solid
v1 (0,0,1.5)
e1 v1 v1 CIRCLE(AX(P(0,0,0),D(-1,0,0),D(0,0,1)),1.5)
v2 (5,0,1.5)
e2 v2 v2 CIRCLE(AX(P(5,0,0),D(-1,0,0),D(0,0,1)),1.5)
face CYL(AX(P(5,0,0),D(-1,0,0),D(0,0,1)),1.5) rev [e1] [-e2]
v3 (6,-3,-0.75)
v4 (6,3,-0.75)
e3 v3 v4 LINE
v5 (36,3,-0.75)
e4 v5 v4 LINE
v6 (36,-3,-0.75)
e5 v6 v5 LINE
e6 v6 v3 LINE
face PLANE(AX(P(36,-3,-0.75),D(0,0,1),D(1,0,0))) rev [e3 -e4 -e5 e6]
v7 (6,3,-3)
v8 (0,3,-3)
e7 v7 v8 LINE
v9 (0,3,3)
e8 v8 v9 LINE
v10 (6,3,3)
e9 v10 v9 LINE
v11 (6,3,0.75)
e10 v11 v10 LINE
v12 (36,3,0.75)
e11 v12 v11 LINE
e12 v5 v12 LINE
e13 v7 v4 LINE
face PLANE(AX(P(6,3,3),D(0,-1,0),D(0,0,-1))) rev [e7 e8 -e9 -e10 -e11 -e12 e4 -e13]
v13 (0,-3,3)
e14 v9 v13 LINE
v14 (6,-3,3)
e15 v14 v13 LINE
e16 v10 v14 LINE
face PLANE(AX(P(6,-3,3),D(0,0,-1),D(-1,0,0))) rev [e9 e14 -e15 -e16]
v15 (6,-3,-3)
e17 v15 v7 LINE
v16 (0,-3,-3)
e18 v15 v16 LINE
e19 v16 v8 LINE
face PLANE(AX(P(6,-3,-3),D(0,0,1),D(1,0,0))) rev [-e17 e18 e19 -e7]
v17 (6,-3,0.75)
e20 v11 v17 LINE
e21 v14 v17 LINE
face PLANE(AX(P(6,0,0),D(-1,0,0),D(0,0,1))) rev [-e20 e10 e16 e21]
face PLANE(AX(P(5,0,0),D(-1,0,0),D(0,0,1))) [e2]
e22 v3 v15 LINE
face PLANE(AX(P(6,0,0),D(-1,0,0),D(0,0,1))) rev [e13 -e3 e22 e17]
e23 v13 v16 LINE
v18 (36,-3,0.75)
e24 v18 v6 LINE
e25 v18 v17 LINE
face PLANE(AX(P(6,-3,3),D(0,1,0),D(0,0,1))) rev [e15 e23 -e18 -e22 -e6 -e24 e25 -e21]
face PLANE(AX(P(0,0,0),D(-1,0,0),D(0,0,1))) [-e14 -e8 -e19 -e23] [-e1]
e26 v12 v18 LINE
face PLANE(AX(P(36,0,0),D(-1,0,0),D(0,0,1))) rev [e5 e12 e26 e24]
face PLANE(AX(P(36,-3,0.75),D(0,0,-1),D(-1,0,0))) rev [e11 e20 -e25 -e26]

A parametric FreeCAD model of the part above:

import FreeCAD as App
import Part
import Sketcher

V = App.Vector


def add_polygon(sketch, points):
    """Adds a closed chain of lines whose ends are joined by coincident constraints."""
    first, n = sketch.GeometryCount, len(points)
    for a, b in zip(points, points[1:] + points[:1]):
        sketch.addGeometry(Part.LineSegment(App.Vector(*a, 0), App.Vector(*b, 0)), False)
    for i in range(n):
        sketch.addConstraint(Sketcher.Constraint("Coincident", first + i, 2, first + (i + 1) % n, 1))

doc = App.newDocument("Part")
body = doc.addObject("PartDesign::Body", "Body")

# Sketch on YZ plane
sketch1 = body.newObject("Sketcher::SketchObject", "Sketch")
sketch1.AttachmentSupport = (doc.getObject("YZ_Plane"), [""])
sketch1.MapMode = "FlatFace"
add_polygon(sketch1, [(3, 3), (-3, 3), (-3, -3), (3, -3)])  # lines 0-3
sketch1.addConstraint([
    Sketcher.Constraint("Horizontal", 0),
    Sketcher.Constraint("Vertical", 1),
    Sketcher.Constraint("Horizontal", 2),
    Sketcher.Constraint("Vertical", 3),
    Sketcher.Constraint("Symmetric", 0, 2, 2, 2, -1, 1),
    Sketcher.Constraint("Equal", 2, 1),
    Sketcher.Constraint("DistanceX", 0, 2, 0, 1, 6.0),
])
pad1 = body.newObject("PartDesign::Pad", "Pad")
pad1.Profile = sketch1
pad1.Length = 6

# Sketch on YZ plane
sketch2 = body.newObject("Sketcher::SketchObject", "Sketch001")
sketch2.AttachmentSupport = (doc.getObject("YZ_Plane"), [""])
sketch2.MapMode = "FlatFace"
sketch2.AttachmentOffset = App.Placement(V(0, 0, 6), App.Rotation())
add_polygon(sketch2, [(3, 0.75), (-3, 0.75), (-3, -0.75), (3, -0.75)])  # lines 0-3
sketch2.addConstraint([
    Sketcher.Constraint("Horizontal", 0),
    Sketcher.Constraint("Vertical", 1),
    Sketcher.Constraint("Horizontal", 2),
    Sketcher.Constraint("Vertical", 3),
    Sketcher.Constraint("Symmetric", 0, 2, 2, 2, -1, 1),
    Sketcher.Constraint("DistanceX", 0, 2, 0, 1, 6.0),
    Sketcher.Constraint("DistanceY", 1, 2, 1, 1, 1.5),
])
pad2 = body.newObject("PartDesign::Pad", "Pad001")
pad2.Profile = sketch2
pad2.Length = 30

# Sketch on YZ plane
sketch3 = body.newObject("Sketcher::SketchObject", "Sketch002")
sketch3.AttachmentSupport = (doc.getObject("YZ_Plane"), [""])
sketch3.MapMode = "FlatFace"
sketch3.addGeometry(Part.Circle(V(0, 0, 0), V(0, 0, 1), 1.5), False)
sketch3.addConstraint([
    Sketcher.Constraint("Coincident", 0, 3, -1, 1),
    Sketcher.Constraint("Diameter", 0, 3.0),
])
pocket1 = body.newObject("PartDesign::Pocket", "Pocket")
pocket1.Profile = sketch3
pocket1.Length = 5
pocket1.Reversed = True

doc.recompute()
